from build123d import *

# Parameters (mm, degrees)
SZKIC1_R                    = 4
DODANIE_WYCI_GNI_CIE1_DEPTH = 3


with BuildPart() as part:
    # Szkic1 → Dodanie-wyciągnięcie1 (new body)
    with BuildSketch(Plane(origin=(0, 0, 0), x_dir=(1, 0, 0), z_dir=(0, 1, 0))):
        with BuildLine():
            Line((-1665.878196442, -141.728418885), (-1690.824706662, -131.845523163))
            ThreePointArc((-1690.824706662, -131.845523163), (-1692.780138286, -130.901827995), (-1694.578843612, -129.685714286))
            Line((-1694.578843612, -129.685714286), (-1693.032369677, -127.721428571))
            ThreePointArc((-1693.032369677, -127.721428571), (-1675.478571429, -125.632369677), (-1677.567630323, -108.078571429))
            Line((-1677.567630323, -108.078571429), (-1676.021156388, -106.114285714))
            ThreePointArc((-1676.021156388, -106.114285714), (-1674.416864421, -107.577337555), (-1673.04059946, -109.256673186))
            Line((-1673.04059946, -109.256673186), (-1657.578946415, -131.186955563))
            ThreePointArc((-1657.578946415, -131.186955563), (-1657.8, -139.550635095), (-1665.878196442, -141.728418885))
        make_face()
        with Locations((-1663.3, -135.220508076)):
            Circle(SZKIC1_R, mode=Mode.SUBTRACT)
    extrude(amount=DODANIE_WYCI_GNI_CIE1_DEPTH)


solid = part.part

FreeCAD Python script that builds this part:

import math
import FreeCAD as App
import Part
import Sketcher
Q = App.Units.Quantity

doc = App.newDocument("Part")
params = doc.addObject("Spreadsheet::Sheet", "Params")
for row, (alias, value) in enumerate([
    ("sketch1_diameter", "8 mm"),
    ("sketch1_radius", "7 mm"),
    ("sketch1_radius2", "15 mm"),
    ("sketch1_radius3", "12.5 mm"),
    ("pad1_length", "3 mm"),
], start=1):
    params.set(f"A{row}", alias)
    params.set(f"B{row}", "=" + value)
    params.setAlias(f"B{row}", alias)

body = doc.addObject("PartDesign::Body", "Body")

sketch1 = body.newObject("Sketcher::SketchObject", "Sketch")
sketch1.AttachmentSupport = (doc.getObject("XZ_Plane"), [""])
sketch1.MapMode = "FlatFace"
sketch1.addGeometry(Part.LineSegment(App.Vector(-1690.8, 131.8, 0), App.Vector(-1665.9, 141.7, 0)), False)
sketch1.addGeometry(Part.ArcOfCircle(Part.Circle(App.Vector(-1663.3, 135.2, 0), App.Vector(0, 0, 1), 7), math.radians(-35), math.radians(112)), False)
sketch1.addGeometry(Part.LineSegment(App.Vector(-1657.6, 131.2, 0), App.Vector(-1673, 109.3, 0)), False)
sketch1.addGeometry(Part.ArcOfCircle(Part.Circle(App.Vector(-1685.3, 117.9, 0), App.Vector(0, 0, 1), 15), math.radians(-51.79), math.radians(-35.19)), False)
sketch1.addGeometry(Part.LineSegment(App.Vector(-1676, 106.1, 0), App.Vector(-1677.6, 108.1, 0)), False)
sketch1.addGeometry(Part.ArcOfCircle(Part.Circle(App.Vector(-1685.3, 117.9, 0), App.Vector(0, 0, 1), 12.5), math.radians(-52), math.radians(128)), False)
sketch1.addGeometry(Part.LineSegment(App.Vector(-1693, 127.7, 0), App.Vector(-1694.6, 129.7, 0)), False)
sketch1.addGeometry(Part.ArcOfCircle(Part.Circle(App.Vector(-1685.3, 117.9, 0), App.Vector(0, 0, 1), 15), math.radians(111.61), math.radians(128.21)), False)
sketch1.addGeometry(Part.Circle(App.Vector(-1663.3, 135.2, 0), App.Vector(0, 0, 1), 4), False)
sketch1.addConstraint(Sketcher.Constraint("Tangent", 0, 2, 1, 2))
sketch1.addConstraint(Sketcher.Constraint("Tangent", 1, 1, 2, 1))
sketch1.addConstraint(Sketcher.Constraint("Tangent", 2, 2, 3, 2))
sketch1.addConstraint(Sketcher.Constraint("Coincident", 3, 1, 4, 1))
sketch1.addConstraint(Sketcher.Constraint("Coincident", 4, 2, 5, 1))
sketch1.addConstraint(Sketcher.Constraint("Coincident", 5, 2, 6, 1))
sketch1.addConstraint(Sketcher.Constraint("Coincident", 6, 2, 7, 2))
sketch1.addConstraint(Sketcher.Constraint("Tangent", 7, 1, 0, 1))
sketch1.addConstraint(Sketcher.Constraint("Coincident", 5, 3, 3, 3))
sketch1.addConstraint(Sketcher.Constraint("Coincident", 7, 3, 3, 3))
sketch1.addConstraint(Sketcher.Constraint("Coincident", 8, 3, 1, 3))
sketch1.addConstraint(Sketcher.Constraint("Equal", 3, 7))
sketch1.addConstraint(Sketcher.Constraint("Parallel", 4, 6))
sketch1.addConstraint(Sketcher.Constraint("Diameter", 8, Q("8 mm")))
sketch1.addConstraint(Sketcher.Constraint("Radius", 1, Q("7 mm")))
sketch1.addConstraint(Sketcher.Constraint("Radius", 3, Q("15 mm")))
sketch1.addConstraint(Sketcher.Constraint("Radius", 5, Q("12.5 mm")))
sketch1.addConstraint(Sketcher.Constraint("DistanceX", 3, 3, 1, 3, Q("22 mm")))
sketch1.addConstraint(Sketcher.Constraint("DistanceX", 1, 3, -1, 1, Q("1663.3 mm")))
sketch1.addConstraint(Sketcher.Constraint("DistanceY", -1, 1, 3, 3, Q("117.9 mm")))
sketch1.addConstraint(Sketcher.Constraint("DistanceX", 2, 2, -1, 1, Q("1673.040599 mm")))
sketch1.addConstraint(Sketcher.Constraint("DistanceY", 4, 2, 2, 2, Q("1.178102 mm")))
sketch1.addConstraint(Sketcher.Constraint("DistanceX", 5, 2, -1, 1, Q("1693.03237 mm")))
sketch1.addConstraint(Sketcher.Constraint("DistanceX", 3, 1, 1, 1, Q("18.44221 mm")))
sketch1.setExpression("Constraints[13]", "Params.sketch1_diameter")
sketch1.setExpression("Constraints[14]", "Params.sketch1_radius")
sketch1.setExpression("Constraints[15]", "Params.sketch1_radius2")
sketch1.setExpression("Constraints[16]", "Params.sketch1_radius3")
pad1 = body.newObject("PartDesign::Pad", "Pad")
pad1.Profile = sketch1
pad1.setExpression("Length", "Params.pad1_length")
pad1.Reversed = True

doc.recompute()
